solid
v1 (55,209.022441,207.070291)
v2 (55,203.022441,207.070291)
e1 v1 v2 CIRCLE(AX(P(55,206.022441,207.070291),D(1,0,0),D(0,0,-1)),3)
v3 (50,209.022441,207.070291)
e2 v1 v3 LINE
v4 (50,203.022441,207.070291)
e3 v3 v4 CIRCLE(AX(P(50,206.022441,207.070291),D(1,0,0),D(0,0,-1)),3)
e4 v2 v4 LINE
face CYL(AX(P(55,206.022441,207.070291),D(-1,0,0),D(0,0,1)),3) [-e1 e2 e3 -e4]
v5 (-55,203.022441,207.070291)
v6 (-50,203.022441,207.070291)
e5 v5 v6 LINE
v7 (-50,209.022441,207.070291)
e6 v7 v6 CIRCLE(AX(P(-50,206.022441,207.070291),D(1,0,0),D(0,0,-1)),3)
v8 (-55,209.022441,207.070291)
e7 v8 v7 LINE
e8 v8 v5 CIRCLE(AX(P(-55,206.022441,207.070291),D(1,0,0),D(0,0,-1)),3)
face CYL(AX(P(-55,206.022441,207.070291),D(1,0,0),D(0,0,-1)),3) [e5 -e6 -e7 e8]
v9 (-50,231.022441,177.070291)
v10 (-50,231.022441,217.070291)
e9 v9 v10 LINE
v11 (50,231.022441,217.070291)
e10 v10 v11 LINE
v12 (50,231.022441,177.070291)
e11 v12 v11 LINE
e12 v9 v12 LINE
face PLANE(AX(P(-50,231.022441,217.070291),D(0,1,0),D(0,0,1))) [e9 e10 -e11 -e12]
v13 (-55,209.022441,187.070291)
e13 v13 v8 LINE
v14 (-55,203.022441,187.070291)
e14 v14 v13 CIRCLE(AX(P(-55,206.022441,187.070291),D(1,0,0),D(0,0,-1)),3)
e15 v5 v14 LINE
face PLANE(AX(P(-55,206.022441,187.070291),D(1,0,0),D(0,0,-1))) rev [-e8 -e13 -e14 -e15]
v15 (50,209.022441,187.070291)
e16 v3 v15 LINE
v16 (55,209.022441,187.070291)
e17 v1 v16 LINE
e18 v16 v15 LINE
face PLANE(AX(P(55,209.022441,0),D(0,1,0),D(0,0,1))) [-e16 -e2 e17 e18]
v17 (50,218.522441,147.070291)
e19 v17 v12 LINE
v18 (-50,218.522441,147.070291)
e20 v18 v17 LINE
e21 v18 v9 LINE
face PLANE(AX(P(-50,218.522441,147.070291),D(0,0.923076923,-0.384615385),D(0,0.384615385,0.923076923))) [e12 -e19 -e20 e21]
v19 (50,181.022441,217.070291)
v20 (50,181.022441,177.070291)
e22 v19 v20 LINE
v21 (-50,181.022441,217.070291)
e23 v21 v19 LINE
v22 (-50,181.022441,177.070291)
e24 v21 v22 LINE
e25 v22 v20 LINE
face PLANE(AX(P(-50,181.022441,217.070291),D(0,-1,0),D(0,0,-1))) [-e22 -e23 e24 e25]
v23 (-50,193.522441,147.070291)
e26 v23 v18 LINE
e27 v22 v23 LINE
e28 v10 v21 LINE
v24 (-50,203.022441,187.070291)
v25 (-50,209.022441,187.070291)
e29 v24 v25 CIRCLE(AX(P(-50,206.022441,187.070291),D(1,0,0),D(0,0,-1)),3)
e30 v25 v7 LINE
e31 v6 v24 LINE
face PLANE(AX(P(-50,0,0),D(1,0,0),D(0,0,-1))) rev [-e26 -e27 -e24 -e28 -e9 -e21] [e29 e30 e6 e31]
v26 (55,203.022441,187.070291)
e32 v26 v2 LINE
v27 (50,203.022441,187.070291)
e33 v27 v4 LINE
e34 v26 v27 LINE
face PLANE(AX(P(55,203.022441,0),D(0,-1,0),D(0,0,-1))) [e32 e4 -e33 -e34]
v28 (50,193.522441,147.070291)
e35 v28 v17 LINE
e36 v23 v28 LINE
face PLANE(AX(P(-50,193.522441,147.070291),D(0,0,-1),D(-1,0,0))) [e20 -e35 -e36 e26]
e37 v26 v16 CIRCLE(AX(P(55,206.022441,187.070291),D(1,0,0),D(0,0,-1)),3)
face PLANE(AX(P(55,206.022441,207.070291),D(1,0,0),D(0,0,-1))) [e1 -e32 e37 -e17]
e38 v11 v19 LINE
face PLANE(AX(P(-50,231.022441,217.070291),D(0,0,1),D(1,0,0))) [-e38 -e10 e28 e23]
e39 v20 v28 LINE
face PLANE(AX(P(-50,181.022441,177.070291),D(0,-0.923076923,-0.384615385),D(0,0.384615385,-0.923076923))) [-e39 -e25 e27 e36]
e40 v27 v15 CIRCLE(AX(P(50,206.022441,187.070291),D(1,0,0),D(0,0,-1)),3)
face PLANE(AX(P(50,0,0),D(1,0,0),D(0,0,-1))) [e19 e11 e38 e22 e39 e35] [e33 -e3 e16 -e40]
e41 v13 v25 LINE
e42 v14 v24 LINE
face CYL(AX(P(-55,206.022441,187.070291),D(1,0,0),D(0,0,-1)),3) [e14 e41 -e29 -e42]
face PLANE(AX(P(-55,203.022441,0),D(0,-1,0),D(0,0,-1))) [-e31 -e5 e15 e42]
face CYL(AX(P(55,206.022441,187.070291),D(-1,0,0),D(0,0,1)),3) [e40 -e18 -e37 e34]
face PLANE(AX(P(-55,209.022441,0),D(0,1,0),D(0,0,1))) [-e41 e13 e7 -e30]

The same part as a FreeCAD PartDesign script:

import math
import FreeCAD as App
import Part
import Sketcher
Q = App.Units.Quantity

doc = App.newDocument("Part")
body = doc.addObject("PartDesign::Body", "Body")

sketch1 = body.newObject("Sketcher::SketchObject", "Sketch")
sketch1.AttachmentSupport = (doc.getObject("YZ_Plane"), [""])
sketch1.MapMode = "FlatFace"
sketch1.addGeometry(Part.LineSegment(App.Vector(193.522441, 147.070291, 0), App.Vector(218.522441, 147.070291, 0)), False)
sketch1.addGeometry(Part.LineSegment(App.Vector(218.522441, 147.070291, 0), App.Vector(231.022441, 177.070291, 0)), False)
sketch1.addGeometry(Part.LineSegment(App.Vector(231.022441, 177.070291, 0), App.Vector(231.022441, 217.070291, 0)), False)
sketch1.addGeometry(Part.LineSegment(App.Vector(231.022441, 217.070291, 0), App.Vector(181.022441, 217.070291, 0)), False)
sketch1.addGeometry(Part.LineSegment(App.Vector(181.022441, 217.070291, 0), App.Vector(181.022441, 177.070291, 0)), False)
sketch1.addGeometry(Part.LineSegment(App.Vector(181.022441, 177.070291, 0), App.Vector(193.522441, 147.070291, 0)), False)
sketch1.addConstraint(Sketcher.Constraint("Coincident", 0, 2, 1, 1))
sketch1.addConstraint(Sketcher.Constraint("Coincident", 1, 2, 2, 1))
sketch1.addConstraint(Sketcher.Constraint("Coincident", 2, 2, 3, 1))
sketch1.addConstraint(Sketcher.Constraint("Coincident", 3, 2, 4, 1))
sketch1.addConstraint(Sketcher.Constraint("Coincident", 4, 2, 5, 1))
sketch1.addConstraint(Sketcher.Constraint("Coincident", 5, 2, 0, 1))
sketch1.addConstraint(Sketcher.Constraint("Horizontal", 0))
sketch1.addConstraint(Sketcher.Constraint("Vertical", 2))
sketch1.addConstraint(Sketcher.Constraint("Horizontal", 3))
sketch1.addConstraint(Sketcher.Constraint("Vertical", 4))
sketch1.addConstraint(Sketcher.Constraint("Horizontal", 1, 2, 4, 2))
sketch1.addConstraint(Sketcher.Constraint("Equal", 1, 5))
sketch1.addConstraint(Sketcher.Constraint("DistanceX", 0, 1, 0, 2, Q("25 mm")))
sketch1.addConstraint(Sketcher.Constraint("DistanceX", 3, 2, 3, 1, Q("50 mm")))
sketch1.addConstraint(Sketcher.Constraint("DistanceY", 2, 1, 2, 2, Q("40 mm")))
sketch1.addConstraint(Sketcher.Constraint("DistanceY", 0, 2, 1, 2, Q("30 mm")))
sketch1.addConstraint(Sketcher.Constraint("DistanceX", -1, 1, 0, 2, Q("218.522441 mm")))
sketch1.addConstraint(Sketcher.Constraint("DistanceY", -1, 1, 0, 2, Q("147.070291 mm")))
pad1 = body.newObject("PartDesign::Pad", "Pad")
pad1.Profile = sketch1
pad1.Type = "TwoLengths"
pad1.Length = 50
pad1.Length2 = 50

sketch2 = body.newObject("Sketcher::SketchObject", "Sketch001")
sketch2.AttachmentSupport = (doc.getObject("YZ_Plane"), [""])
sketch2.MapMode = "FlatFace"
sketch2.AttachmentOffset = App.Placement(App.Vector(0, 0, 50), App.Rotation())
sketch2.addGeometry(Part.LineSegment(App.Vector(203.022441, 207.070291, 0), App.Vector(203.022441, 187.070291, 0)), False)
sketch2.addGeometry(Part.ArcOfCircle(Part.Circle(App.Vector(206.022441, 187.070291, 0), App.Vector(0, 0, 1), 3), math.radians(180), math.radians(360)), False)
sketch2.addGeometry(Part.LineSegment(App.Vector(209.022441, 187.070291, 0), App.Vector(209.022441, 207.070291, 0)), False)
sketch2.addGeometry(Part.ArcOfCircle(Part.Circle(App.Vector(206.022441, 207.070291, 0), App.Vector(0, 0, 1), 3), math.radians(0), math.radians(180)), False)
sketch2.addConstraint(Sketcher.Constraint("Tangent", 0, 2, 1, 1))
sketch2.addConstraint(Sketcher.Constraint("Tangent", 1, 2, 2, 1))
sketch2.addConstraint(Sketcher.Constraint("Tangent", 2, 2, 3, 1))
sketch2.addConstraint(Sketcher.Constraint("Tangent", 3, 2, 0, 1))
sketch2.addConstraint(Sketcher.Constraint("Vertical", 0))
sketch2.addConstraint(Sketcher.Constraint("Vertical", 2))
sketch2.addConstraint(Sketcher.Constraint("Radius", 1, Q("3 mm")))
sketch2.addConstraint(Sketcher.Constraint("DistanceY", 0, 2, 0, 1, Q("20 mm")))
sketch2.addConstraint(Sketcher.Constraint("DistanceX", -1, 1, 1, 3, Q("206.022441 mm")))
sketch2.addConstraint(Sketcher.Constraint("DistanceY", -1, 1, 1, 3, Q("187.070291 mm")))
pad2 = body.newObject("PartDesign::Pad", "Pad001")
pad2.Profile = sketch2
pad2.Length = 5

sketch3 = body.newObject("Sketcher::SketchObject", "Sketch002")
sketch3.AttachmentSupport = (doc.getObject("YZ_Plane"), [""])
sketch3.MapMode = "FlatFace"
sketch3.AttachmentOffset = App.Placement(App.Vector(0, 0, -55), App.Rotation())
sketch3.addGeometry(Part.LineSegment(App.Vector(203.022441, 207.070291, 0), App.Vector(203.022441, 187.070291, 0)), False)
sketch3.addGeometry(Part.ArcOfCircle(Part.Circle(App.Vector(206.022441, 187.070291, 0), App.Vector(0, 0, 1), 3), math.radians(180), math.radians(360)), False)
sketch3.addGeometry(Part.LineSegment(App.Vector(209.022441, 187.070291, 0), App.Vector(209.022441, 207.070291, 0)), False)
sketch3.addGeometry(Part.ArcOfCircle(Part.Circle(App.Vector(206.022441, 207.070291, 0), App.Vector(0, 0, 1), 3), math.radians(0), math.radians(180)), False)
sketch3.addConstraint(Sketcher.Constraint("Tangent", 0, 2, 1, 1))
sketch3.addConstraint(Sketcher.Constraint("Tangent", 1, 2, 2, 1))
sketch3.addConstraint(Sketcher.Constraint("Tangent", 2, 2, 3, 1))
sketch3.addConstraint(Sketcher.Constraint("Tangent", 3, 2, 0, 1))
sketch3.addConstraint(Sketcher.Constraint("Vertical", 0))
sketch3.addConstraint(Sketcher.Constraint("Vertical", 2))
sketch3.addConstraint(Sketcher.Constraint("Radius", 1, Q("3 mm")))
sketch3.addConstraint(Sketcher.Constraint("DistanceY", 0, 2, 0, 1, Q("20 mm")))
sketch3.addConstraint(Sketcher.Constraint("DistanceX", -1, 1, 1, 3, Q("206.022441 mm")))
sketch3.addConstraint(Sketcher.Constraint("DistanceY", -1, 1, 1, 3, Q("187.070291 mm")))
pad3 = body.newObject("PartDesign::Pad", "Pad002")
pad3.Profile = sketch3
pad3.Length = 5

doc.recompute()
